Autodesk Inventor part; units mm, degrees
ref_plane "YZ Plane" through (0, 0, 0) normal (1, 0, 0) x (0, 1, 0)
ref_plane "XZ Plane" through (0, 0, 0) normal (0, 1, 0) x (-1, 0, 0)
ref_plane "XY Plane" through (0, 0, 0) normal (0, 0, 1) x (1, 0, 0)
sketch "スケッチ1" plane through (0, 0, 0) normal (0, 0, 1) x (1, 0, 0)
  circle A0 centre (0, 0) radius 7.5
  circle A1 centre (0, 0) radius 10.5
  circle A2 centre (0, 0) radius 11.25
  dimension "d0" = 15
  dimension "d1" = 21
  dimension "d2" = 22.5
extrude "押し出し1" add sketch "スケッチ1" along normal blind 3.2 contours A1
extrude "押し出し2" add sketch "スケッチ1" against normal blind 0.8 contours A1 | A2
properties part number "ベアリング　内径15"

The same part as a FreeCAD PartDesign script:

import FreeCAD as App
import Part
import Sketcher
from FreeCAD import Vector

doc = App.newDocument("Part")
body = doc.addObject("PartDesign::Body", "Body")

# Sketch on XY plane
sketch1 = body.newObject("Sketcher::SketchObject", "Sketch")
sketch1.AttachmentSupport = (doc.getObject("XY_Plane"), [""])
sketch1.MapMode = "FlatFace"
sketch1.addGeometry([
    Part.Circle(Vector(0, 0, 0), Vector(0, 0, 1), 10),
    Part.Circle(Vector(0, 0, 0), Vector(0, 0, 1), 8),
], False)
sketch1.addConstraint([
    Sketcher.Constraint("Coincident", 0, 3, -1, 1),
    Sketcher.Constraint("Coincident", 1, 3, -1, 1),
    Sketcher.Constraint("Diameter", 0, 21.0),
    Sketcher.Constraint("Diameter", 1, 15.0),
])
pad1 = body.newObject("PartDesign::Pad", "Pad")
pad1.Profile = sketch1
pad1.Length = 3.2

# Sketch on XY plane
sketch2 = body.newObject("Sketcher::SketchObject", "Sketch001")
sketch2.AttachmentSupport = (doc.getObject("XY_Plane"), [""])
sketch2.MapMode = "FlatFace"
sketch2.addGeometry([
    Part.Circle(Vector(0, 0, 0), Vector(0, 0, 1), 11),
    Part.Circle(Vector(0, 0, 0), Vector(0, 0, 1), 8),
], False)
sketch2.addConstraint([
    Sketcher.Constraint("Coincident", 0, 3, -1, 1),
    Sketcher.Constraint("Coincident", 1, 3, -1, 1),
    Sketcher.Constraint("Diameter", 1, 15.0),
    Sketcher.Constraint("Diameter", 0, 22.5),
])
pad2 = body.newObject("PartDesign::Pad", "Pad001")
pad2.Profile = sketch2
pad2.Length = 0.8
pad2.Reversed = True

doc.recompute()
